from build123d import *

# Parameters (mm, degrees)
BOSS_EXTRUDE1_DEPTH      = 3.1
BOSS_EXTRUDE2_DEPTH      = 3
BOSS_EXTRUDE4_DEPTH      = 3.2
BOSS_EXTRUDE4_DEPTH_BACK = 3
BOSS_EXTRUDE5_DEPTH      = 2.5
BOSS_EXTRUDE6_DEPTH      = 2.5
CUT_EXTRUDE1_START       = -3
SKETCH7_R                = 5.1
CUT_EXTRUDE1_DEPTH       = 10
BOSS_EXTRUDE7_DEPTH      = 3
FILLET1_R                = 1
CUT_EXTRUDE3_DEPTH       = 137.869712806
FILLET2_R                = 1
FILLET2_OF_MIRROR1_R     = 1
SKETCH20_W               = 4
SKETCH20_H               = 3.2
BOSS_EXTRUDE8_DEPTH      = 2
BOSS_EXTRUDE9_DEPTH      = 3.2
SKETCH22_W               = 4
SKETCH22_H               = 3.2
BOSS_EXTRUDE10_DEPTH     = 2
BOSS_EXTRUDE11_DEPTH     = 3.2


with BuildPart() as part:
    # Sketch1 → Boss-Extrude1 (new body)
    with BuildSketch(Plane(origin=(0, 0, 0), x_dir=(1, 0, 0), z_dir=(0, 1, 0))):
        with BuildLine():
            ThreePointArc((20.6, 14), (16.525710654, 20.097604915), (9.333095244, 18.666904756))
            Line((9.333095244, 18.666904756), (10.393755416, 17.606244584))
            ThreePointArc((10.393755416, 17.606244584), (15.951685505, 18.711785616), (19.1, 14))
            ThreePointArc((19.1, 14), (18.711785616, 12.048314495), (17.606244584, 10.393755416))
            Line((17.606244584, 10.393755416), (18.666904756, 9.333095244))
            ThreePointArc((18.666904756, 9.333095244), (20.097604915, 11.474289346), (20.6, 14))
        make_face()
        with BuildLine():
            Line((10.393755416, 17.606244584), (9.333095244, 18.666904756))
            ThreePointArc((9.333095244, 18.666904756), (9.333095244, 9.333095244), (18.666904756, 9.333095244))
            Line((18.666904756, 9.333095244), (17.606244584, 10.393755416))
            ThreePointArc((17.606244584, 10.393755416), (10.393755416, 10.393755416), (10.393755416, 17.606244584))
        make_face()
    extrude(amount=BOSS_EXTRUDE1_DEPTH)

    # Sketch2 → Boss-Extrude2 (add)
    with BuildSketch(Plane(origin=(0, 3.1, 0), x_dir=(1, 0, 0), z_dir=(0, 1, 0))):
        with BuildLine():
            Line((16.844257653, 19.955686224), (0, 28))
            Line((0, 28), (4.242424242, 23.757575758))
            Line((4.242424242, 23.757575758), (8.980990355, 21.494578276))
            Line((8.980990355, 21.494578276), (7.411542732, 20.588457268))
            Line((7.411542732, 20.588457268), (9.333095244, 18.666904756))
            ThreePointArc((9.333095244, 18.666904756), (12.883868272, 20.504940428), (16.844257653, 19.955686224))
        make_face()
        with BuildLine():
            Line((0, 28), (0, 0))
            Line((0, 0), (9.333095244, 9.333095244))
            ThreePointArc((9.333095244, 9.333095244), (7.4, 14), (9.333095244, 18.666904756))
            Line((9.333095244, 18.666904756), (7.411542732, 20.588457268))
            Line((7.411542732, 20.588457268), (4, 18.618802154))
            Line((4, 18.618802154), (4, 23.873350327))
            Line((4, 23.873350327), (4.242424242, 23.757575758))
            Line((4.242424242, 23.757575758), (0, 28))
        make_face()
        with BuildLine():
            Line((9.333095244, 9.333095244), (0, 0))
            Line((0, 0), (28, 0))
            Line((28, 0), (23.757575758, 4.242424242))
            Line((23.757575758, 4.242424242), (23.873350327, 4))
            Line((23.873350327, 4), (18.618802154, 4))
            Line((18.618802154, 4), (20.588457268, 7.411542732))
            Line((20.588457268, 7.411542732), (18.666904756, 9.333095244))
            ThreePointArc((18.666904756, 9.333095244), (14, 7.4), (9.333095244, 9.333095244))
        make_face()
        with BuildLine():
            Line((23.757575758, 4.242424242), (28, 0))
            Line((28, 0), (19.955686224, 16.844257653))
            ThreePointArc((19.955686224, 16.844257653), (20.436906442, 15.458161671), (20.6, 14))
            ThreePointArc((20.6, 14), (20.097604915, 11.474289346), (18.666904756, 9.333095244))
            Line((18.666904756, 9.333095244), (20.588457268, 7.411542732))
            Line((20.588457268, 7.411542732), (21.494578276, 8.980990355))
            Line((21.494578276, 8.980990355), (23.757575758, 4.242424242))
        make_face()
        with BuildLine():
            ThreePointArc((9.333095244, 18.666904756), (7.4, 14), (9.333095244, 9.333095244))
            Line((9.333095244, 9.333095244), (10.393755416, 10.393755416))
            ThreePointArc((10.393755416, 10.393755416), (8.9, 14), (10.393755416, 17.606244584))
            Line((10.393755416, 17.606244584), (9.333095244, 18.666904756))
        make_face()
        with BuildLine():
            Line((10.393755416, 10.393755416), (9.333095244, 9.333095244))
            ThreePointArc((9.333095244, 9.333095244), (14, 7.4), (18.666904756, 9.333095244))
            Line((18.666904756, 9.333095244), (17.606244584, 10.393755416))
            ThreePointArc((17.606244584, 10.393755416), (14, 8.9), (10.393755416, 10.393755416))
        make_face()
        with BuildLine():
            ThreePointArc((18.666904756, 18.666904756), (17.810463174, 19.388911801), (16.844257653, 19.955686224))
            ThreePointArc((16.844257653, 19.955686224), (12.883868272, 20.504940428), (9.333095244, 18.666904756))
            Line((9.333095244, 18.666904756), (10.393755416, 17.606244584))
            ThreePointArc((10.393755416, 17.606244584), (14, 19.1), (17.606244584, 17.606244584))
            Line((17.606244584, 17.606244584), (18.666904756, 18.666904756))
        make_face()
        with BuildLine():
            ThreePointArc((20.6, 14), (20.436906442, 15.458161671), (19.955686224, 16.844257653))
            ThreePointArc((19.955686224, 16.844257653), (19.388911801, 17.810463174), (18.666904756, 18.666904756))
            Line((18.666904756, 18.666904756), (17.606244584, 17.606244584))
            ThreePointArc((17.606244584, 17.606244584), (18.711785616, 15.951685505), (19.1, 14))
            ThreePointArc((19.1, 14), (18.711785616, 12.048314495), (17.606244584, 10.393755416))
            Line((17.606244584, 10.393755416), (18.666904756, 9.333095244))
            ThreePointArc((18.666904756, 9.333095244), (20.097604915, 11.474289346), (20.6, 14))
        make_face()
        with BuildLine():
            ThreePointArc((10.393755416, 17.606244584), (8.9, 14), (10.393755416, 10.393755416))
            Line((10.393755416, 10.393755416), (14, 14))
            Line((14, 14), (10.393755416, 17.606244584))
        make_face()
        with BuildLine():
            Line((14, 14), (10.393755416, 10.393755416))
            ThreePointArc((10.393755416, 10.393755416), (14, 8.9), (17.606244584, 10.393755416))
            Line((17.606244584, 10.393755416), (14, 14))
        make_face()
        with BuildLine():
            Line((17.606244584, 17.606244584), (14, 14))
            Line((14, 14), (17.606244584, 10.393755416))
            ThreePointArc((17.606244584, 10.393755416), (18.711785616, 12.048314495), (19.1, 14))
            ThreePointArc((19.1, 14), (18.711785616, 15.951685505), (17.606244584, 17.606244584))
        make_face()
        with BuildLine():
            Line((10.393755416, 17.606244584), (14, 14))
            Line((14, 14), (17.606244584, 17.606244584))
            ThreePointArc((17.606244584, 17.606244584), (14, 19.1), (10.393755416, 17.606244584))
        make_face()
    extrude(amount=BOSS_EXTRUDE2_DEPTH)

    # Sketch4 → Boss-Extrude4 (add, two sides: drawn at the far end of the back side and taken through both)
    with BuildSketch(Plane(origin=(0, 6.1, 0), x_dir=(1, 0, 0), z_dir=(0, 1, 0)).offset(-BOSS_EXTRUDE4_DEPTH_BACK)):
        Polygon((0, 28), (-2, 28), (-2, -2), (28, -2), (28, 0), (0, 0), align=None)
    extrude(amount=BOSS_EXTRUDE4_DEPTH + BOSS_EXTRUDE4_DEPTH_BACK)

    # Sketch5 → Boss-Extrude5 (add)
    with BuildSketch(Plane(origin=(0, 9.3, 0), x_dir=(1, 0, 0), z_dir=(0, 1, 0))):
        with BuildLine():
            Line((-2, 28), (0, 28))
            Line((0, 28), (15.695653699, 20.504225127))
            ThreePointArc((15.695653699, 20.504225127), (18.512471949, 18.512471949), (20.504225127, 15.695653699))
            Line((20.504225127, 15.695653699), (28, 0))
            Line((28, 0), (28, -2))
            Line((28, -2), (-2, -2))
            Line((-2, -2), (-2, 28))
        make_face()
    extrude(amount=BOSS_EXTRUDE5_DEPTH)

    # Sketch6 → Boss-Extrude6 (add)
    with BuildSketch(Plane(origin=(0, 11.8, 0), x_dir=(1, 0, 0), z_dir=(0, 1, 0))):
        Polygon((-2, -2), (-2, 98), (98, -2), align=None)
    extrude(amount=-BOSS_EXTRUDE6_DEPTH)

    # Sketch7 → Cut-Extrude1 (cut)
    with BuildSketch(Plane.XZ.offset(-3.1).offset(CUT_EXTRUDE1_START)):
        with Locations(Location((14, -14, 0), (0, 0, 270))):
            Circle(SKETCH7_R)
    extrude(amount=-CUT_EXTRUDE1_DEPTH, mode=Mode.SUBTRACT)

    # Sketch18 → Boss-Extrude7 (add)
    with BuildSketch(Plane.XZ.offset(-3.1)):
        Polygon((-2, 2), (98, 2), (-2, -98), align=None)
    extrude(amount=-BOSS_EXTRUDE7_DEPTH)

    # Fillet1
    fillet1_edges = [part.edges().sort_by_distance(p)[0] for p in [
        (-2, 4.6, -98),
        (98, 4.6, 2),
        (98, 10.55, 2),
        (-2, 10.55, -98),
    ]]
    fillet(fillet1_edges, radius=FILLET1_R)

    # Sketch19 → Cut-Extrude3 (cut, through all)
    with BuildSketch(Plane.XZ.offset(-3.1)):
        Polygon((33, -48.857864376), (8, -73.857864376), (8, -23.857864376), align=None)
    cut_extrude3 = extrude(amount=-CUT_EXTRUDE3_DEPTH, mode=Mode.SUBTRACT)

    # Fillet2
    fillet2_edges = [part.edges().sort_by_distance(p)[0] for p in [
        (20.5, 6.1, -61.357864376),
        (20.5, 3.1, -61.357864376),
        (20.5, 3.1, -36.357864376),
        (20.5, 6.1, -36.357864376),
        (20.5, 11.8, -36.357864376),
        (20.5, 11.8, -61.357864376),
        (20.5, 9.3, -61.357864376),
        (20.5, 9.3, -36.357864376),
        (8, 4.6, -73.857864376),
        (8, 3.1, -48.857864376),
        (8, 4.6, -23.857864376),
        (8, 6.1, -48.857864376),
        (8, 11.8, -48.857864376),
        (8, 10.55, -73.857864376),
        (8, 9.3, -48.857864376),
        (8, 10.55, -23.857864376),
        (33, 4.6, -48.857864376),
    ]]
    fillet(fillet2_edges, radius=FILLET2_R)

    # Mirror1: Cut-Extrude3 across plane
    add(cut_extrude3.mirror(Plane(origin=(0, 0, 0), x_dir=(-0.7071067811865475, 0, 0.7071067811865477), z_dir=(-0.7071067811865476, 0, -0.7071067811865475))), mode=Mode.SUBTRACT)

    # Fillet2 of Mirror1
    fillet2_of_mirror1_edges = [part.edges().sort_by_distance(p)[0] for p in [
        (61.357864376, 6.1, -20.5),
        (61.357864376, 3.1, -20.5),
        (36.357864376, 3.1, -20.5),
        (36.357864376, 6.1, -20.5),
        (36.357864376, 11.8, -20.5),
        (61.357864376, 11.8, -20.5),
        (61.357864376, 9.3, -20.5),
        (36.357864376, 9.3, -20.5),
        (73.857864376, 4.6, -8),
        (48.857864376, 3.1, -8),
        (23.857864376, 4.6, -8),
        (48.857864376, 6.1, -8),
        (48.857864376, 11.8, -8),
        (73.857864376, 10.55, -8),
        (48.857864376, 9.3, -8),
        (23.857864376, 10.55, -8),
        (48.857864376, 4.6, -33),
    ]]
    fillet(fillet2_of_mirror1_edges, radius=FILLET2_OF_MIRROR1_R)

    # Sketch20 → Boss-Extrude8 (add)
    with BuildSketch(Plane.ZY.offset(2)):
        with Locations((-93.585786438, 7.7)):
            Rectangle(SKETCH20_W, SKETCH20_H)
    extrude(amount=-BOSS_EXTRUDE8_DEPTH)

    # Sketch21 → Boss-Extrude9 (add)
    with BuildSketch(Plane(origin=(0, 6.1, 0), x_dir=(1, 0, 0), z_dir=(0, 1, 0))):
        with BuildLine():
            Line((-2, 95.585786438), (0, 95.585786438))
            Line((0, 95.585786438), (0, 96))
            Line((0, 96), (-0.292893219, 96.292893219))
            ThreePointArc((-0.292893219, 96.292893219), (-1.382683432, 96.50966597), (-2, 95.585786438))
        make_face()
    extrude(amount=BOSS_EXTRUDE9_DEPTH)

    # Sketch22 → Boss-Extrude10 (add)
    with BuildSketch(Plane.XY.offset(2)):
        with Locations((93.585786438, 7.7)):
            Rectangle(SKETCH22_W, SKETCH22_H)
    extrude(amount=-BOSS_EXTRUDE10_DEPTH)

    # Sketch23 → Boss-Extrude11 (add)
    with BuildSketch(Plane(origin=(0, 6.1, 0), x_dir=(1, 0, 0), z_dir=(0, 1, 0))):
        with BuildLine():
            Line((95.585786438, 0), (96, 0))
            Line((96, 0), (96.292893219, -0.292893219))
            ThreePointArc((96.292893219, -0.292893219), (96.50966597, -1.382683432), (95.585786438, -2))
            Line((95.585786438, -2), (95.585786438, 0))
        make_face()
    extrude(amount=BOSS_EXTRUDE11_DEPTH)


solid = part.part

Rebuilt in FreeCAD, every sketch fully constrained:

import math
import FreeCAD as App
import Part
import Sketcher
Q = App.Units.Quantity


def edges_at(feature, points):
    """Names of the edges that pass closest to the given points."""
    edges = feature.Shape.Edges
    near = lambda p: min(range(len(edges)), key=lambda i: edges[i].distToShape(Part.Vertex(*p))[0])
    return sorted({f"Edge{near(p) + 1}" for p in points})

doc = App.newDocument("Part")
body = doc.addObject("PartDesign::Body", "Body")

sketch1 = body.newObject("Sketcher::SketchObject", "Sketch")
sketch1.AttachmentSupport = (doc.getObject("XZ_Plane"), [""])
sketch1.MapMode = "FlatFace"
sketch1.addGeometry([
    Part.ArcOfCircle(Part.Circle(App.Vector(14, -14, 0), App.Vector(0, 0, 1), 6.6), math.radians(-135), math.radians(0)),
    Part.ArcOfCircle(Part.Circle(App.Vector(14, -14, 0), App.Vector(0, 0, 1), 6.6), math.radians(45), math.radians(225)),
    Part.ArcOfCircle(Part.Circle(App.Vector(14, -14, 0), App.Vector(0, 0, 1), 6.6), math.radians(0), math.radians(45)),
    Part.ArcOfCircle(Part.Circle(App.Vector(14, -14, 0), App.Vector(0, 0, 1), 5.1), math.radians(0), math.radians(45)),
    Part.ArcOfCircle(Part.Circle(App.Vector(14, -14, 0), App.Vector(0, 0, 1), 5.1), math.radians(45), math.radians(225)),
    Part.ArcOfCircle(Part.Circle(App.Vector(14, -14, 0), App.Vector(0, 0, 1), 5.1), math.radians(-135), math.radians(0)),
], False)
sketch1.addConstraint([
    Sketcher.Constraint("Tangent", 0, 1, 1, 2),
    Sketcher.Constraint("Tangent", 1, 1, 2, 2),
    Sketcher.Constraint("Tangent", 2, 1, 0, 2),
    Sketcher.Constraint("Tangent", 3, 2, 4, 1),
    Sketcher.Constraint("Tangent", 4, 2, 5, 1),
    Sketcher.Constraint("Tangent", 5, 2, 3, 1),
    Sketcher.Constraint("Coincident", 3, 3, 0, 3),
    Sketcher.Constraint("Horizontal", 5, 3, 2, 1),
    Sketcher.Constraint("Horizontal", 2, 1, 5, 2),
    Sketcher.Constraint("Radius", 0, Q("6.6 mm")),
    Sketcher.Constraint("Radius", 3, Q("5.1 mm")),
    Sketcher.Constraint("DistanceX", -1, 1, 0, 3, Q("14 mm")),
    Sketcher.Constraint("DistanceY", 0, 3, -1, 1, Q("14 mm")),
    Sketcher.Constraint("DistanceX", 3, 2, 1, 1, Q("1.06066 mm")),
    Sketcher.Constraint("DistanceX", 0, 1, 4, 2, Q("1.06066 mm")),
    Sketcher.Constraint("DistanceX", -1, 1, 0, 1, Q("9.333095 mm")),
    Sketcher.Constraint("DistanceX", -1, 1, 1, 1, Q("18.666905 mm")),
])
pad1 = body.newObject("PartDesign::Pad", "Pad")
pad1.Profile = sketch1
pad1.Length = 3.1
pad1.Reversed = True

sketch2 = body.newObject("Sketcher::SketchObject", "Sketch001")
sketch2.AttachmentSupport = (doc.getObject("XZ_Plane"), [""])
sketch2.MapMode = "FlatFace"
sketch2.AttachmentOffset = App.Placement(App.Vector(0, 0, -3.1), App.Rotation())
sketch2.addGeometry([
    Part.ArcOfCircle(Part.Circle(App.Vector(14, -14, 0), App.Vector(0, 0, 1), 6.6), math.radians(-64.47), math.radians(-45)),
    Part.LineSegment(App.Vector(16.84, -19.96, 0), App.Vector(0, -28, 0)),
    Part.LineSegment(App.Vector(0, -28, 0), App.Vector(0, 0, 0)),
    Part.LineSegment(App.Vector(0, 0, 0), App.Vector(28, 0, 0)),
    Part.LineSegment(App.Vector(28, 0, 0), App.Vector(19.96, -16.84, 0)),
    Part.ArcOfCircle(Part.Circle(App.Vector(14, -14, 0), App.Vector(0, 0, 1), 6.6), math.radians(-45), math.radians(-25.53)),
    Part.LineSegment(App.Vector(23.76, -4.24, 0), App.Vector(23.87, -4, 0)),
    Part.LineSegment(App.Vector(23.87, -4, 0), App.Vector(18.62, -4, 0)),
    Part.LineSegment(App.Vector(18.62, -4, 0), App.Vector(20.59, -7.41, 0)),
    Part.LineSegment(App.Vector(20.59, -7.41, 0), App.Vector(21.49, -8.98, 0)),
    Part.LineSegment(App.Vector(21.49, -8.98, 0), App.Vector(23.76, -4.24, 0)),
    Part.LineSegment(App.Vector(4.24, -23.76, 0), App.Vector(8.98, -21.49, 0)),
    Part.LineSegment(App.Vector(8.98, -21.49, 0), App.Vector(7.41, -20.59, 0)),
    Part.LineSegment(App.Vector(7.41, -20.59, 0), App.Vector(4, -18.62, 0)),
    Part.LineSegment(App.Vector(4, -18.62, 0), App.Vector(4, -23.87, 0)),
    Part.LineSegment(App.Vector(4, -23.87, 0), App.Vector(4.24, -23.76, 0)),
], False)
sketch2.addConstraint([
    Sketcher.Constraint("Tangent", 0, 1, 1, 1),
    Sketcher.Constraint("Coincident", 1, 2, 2, 1),
    Sketcher.Constraint("Coincident", 2, 2, 3, 1),
    Sketcher.Constraint("Coincident", 3, 2, 4, 1),
    Sketcher.Constraint("Tangent", 4, 2, 5, 2),
    Sketcher.Constraint("Tangent", 5, 1, 0, 2),
    Sketcher.Constraint("Coincident", 6, 2, 7, 1),
    Sketcher.Constraint("Coincident", 7, 2, 8, 1),
    Sketcher.Constraint("Coincident", 8, 2, 9, 1),
    Sketcher.Constraint("Coincident", 9, 2, 10, 1),
    Sketcher.Constraint("Coincident", 10, 2, 6, 1),
    Sketcher.Constraint("Coincident", 11, 2, 12, 1),
    Sketcher.Constraint("Coincident", 12, 2, 13, 1),
    Sketcher.Constraint("Coincident", 13, 2, 14, 1),
    Sketcher.Constraint("Coincident", 14, 2, 15, 1),
    Sketcher.Constraint("Coincident", 15, 2, 11, 1),
    Sketcher.Constraint("Vertical", 2),
    Sketcher.Constraint("Horizontal", 3),
    Sketcher.Constraint("Horizontal", 7),
    Sketcher.Constraint("Vertical", 14),
    Sketcher.Constraint("Coincident", 2, 2, -1, 1),
    Sketcher.Constraint("Equal", 0, 5),
    Sketcher.Constraint("Parallel", 4, 6),
    Sketcher.Constraint("Parallel", 8, 9),
    Sketcher.Constraint("Parallel", 6, 10),
    Sketcher.Constraint("Parallel", 1, 11),
    Sketcher.Constraint("Parallel", 12, 13),
    Sketcher.Constraint("Parallel", 11, 15),
    Sketcher.Constraint("Equal", 3, 2),
    Sketcher.Constraint("Equal", 7, 14),
    Sketcher.Constraint("Equal", 1, 4),
    Sketcher.Constraint("Equal", 10, 11),
    Sketcher.Constraint("Equal", 9, 12),
    Sketcher.Constraint("Equal", 8, 13),
    Sketcher.Constraint("Radius", 0, Q("6.6 mm")),
    Sketcher.Constraint("DistanceX", 3, 1, 3, 2, Q("28 mm")),
    Sketcher.Constraint("Angle", 8, Q("-60 deg")),
    Sketcher.Constraint("DistanceX", -1, 1, 0, 3, Q("14 mm")),
    Sketcher.Constraint("DistanceY", 6, 2, -1, 1, Q("4 mm")),
    Sketcher.Constraint("DistanceX", -1, 1, 13, 2, Q("4 mm")),
    Sketcher.Constraint("DistanceX", 7, 2, 7, 1, Q("5.254548 mm")),
    Sketcher.Constraint("Distance", 6, Q("0.268651 mm")),
    Sketcher.Constraint("Distance", 8, Q("3.93931 mm")),
    Sketcher.Constraint("DistanceX", -1, 1, 6, 2, Q("23.87335 mm")),
    Sketcher.Constraint("DistanceY", 11, 2, -1, 1, Q("21.494578 mm")),
    Sketcher.Constraint("DistanceY", 0, 1, 5, 1, Q("1.288781 mm")),
])
pad2 = body.newObject("PartDesign::Pad", "Pad001")
pad2.Profile = sketch2
pad2.Length = 3
pad2.Reversed = True

sketch3 = body.newObject("Sketcher::SketchObject", "Sketch002")
sketch3.AttachmentSupport = (doc.getObject("XZ_Plane"), [""])
sketch3.MapMode = "FlatFace"
sketch3.AttachmentOffset = App.Placement(App.Vector(0, 0, -6.1), App.Rotation())
sketch3.addGeometry([
    Part.LineSegment(App.Vector(0, -28, 0), App.Vector(-2, -28, 0)),
    Part.LineSegment(App.Vector(-2, -28, 0), App.Vector(-2, 2, 0)),
    Part.LineSegment(App.Vector(-2, 2, 0), App.Vector(28, 2, 0)),
    Part.LineSegment(App.Vector(28, 2, 0), App.Vector(28, 0, 0)),
    Part.LineSegment(App.Vector(28, 0, 0), App.Vector(0, 0, 0)),
    Part.LineSegment(App.Vector(0, 0, 0), App.Vector(0, -28, 0)),
], False)
sketch3.addConstraint([
    Sketcher.Constraint("Coincident", 0, 2, 1, 1),
    Sketcher.Constraint("Coincident", 1, 2, 2, 1),
    Sketcher.Constraint("Coincident", 2, 2, 3, 1),
    Sketcher.Constraint("Coincident", 3, 2, 4, 1),
    Sketcher.Constraint("Coincident", 4, 2, 5, 1),
    Sketcher.Constraint("Coincident", 5, 2, 0, 1),
    Sketcher.Constraint("Horizontal", 0),
    Sketcher.Constraint("Vertical", 1),
    Sketcher.Constraint("Horizontal", 2),
    Sketcher.Constraint("Vertical", 3),
    Sketcher.Constraint("Horizontal", 4),
    Sketcher.Constraint("Vertical", 5),
    Sketcher.Constraint("Coincident", 4, 2, -1, 1),
    Sketcher.Constraint("Equal", 2, 1),
    Sketcher.Constraint("Equal", 0, 3),
    Sketcher.Constraint("DistanceX", 0, 2, 0, 1, Q("2 mm")),
    Sketcher.Constraint("DistanceX", 2, 1, 2, 2, Q("30 mm")),
])
pad3 = body.newObject("PartDesign::Pad", "Pad002")
pad3.Profile = sketch3
pad3.Type = "TwoLengths"
pad3.Length = 3.2
pad3.Length2 = 3
pad3.Reversed = True

sketch4 = body.newObject("Sketcher::SketchObject", "Sketch003")
sketch4.AttachmentSupport = (doc.getObject("XZ_Plane"), [""])
sketch4.MapMode = "FlatFace"
sketch4.AttachmentOffset = App.Placement(App.Vector(0, 0, -9.3), App.Rotation())
sketch4.addGeometry([
    Part.LineSegment(App.Vector(0, -28, 0), App.Vector(-2, -28, 0)),
    Part.LineSegment(App.Vector(-2, -28, 0), App.Vector(-2, 2, 0)),
    Part.LineSegment(App.Vector(-2, 2, 0), App.Vector(28, 2, 0)),
    Part.LineSegment(App.Vector(28, 2, 0), App.Vector(28, 0, 0)),
    Part.LineSegment(App.Vector(28, 0, 0), App.Vector(20.5, -15.7, 0)),
    Part.ArcOfCircle(Part.Circle(App.Vector(11.3, -11.3, 0), App.Vector(0, 0, 1), 10.2), math.radians(-64), math.radians(-26)),
    Part.LineSegment(App.Vector(15.7, -20.5, 0), App.Vector(0, -28, 0)),
], False)
sketch4.addConstraint([
    Sketcher.Constraint("Coincident", 0, 2, 1, 1),
    Sketcher.Constraint("Coincident", 1, 2, 2, 1),
    Sketcher.Constraint("Coincident", 2, 2, 3, 1),
    Sketcher.Constraint("Coincident", 3, 2, 4, 1),
    Sketcher.Constraint("Tangent", 4, 2, 5, 2),
    Sketcher.Constraint("Tangent", 5, 1, 6, 1),
    Sketcher.Constraint("Coincident", 6, 2, 0, 1),
    Sketcher.Constraint("Horizontal", 0),
    Sketcher.Constraint("Vertical", 1),
    Sketcher.Constraint("Horizontal", 2),
    Sketcher.Constraint("Vertical", 3),
    Sketcher.Constraint("PointOnObject", 3, 2, -1),
    Sketcher.Constraint("PointOnObject", 6, 2, -2),
    Sketcher.Constraint("Equal", 2, 1),
    Sketcher.Constraint("Equal", 0, 3),
    Sketcher.Constraint("Equal", 4, 6),
    Sketcher.Constraint("Radius", 5, Q("10.2 mm")),
    Sketcher.Constraint("DistanceX", 0, 2, 0, 1, Q("2 mm")),
    Sketcher.Constraint("DistanceX", 2, 1, 2, 2, Q("30 mm")),
    Sketcher.Constraint("DistanceY", 4, 2, 5, 3, Q("4.395671 mm")),
])
pad4 = body.newObject("PartDesign::Pad", "Pad003")
pad4.Profile = sketch4
pad4.Length = 2.5
pad4.Reversed = True

sketch5 = body.newObject("Sketcher::SketchObject", "Sketch004")
sketch5.AttachmentSupport = (doc.getObject("XZ_Plane"), [""])
sketch5.MapMode = "FlatFace"
sketch5.AttachmentOffset = App.Placement(App.Vector(0, 0, -11.8), App.Rotation())
sketch5.addGeometry([
    Part.LineSegment(App.Vector(-2, -98, 0), App.Vector(-2, 2, 0)),
    Part.LineSegment(App.Vector(-2, 2, 0), App.Vector(98, 2, 0)),
    Part.LineSegment(App.Vector(98, 2, 0), App.Vector(-2, -98, 0)),
], False)
sketch5.addConstraint([
    Sketcher.Constraint("Coincident", 0, 2, 1, 1),
    Sketcher.Constraint("Coincident", 1, 2, 2, 1),
    Sketcher.Constraint("Coincident", 2, 2, 0, 1),
    Sketcher.Constraint("Vertical", 0),
    Sketcher.Constraint("Horizontal", 1),
    Sketcher.Constraint("Equal", 1, 0),
    Sketcher.Constraint("DistanceX", 1, 1, 1, 2, Q("100 mm")),
    Sketcher.Constraint("DistanceX", 0, 2, -1, 1, Q("2 mm")),
    Sketcher.Constraint("DistanceY", -1, 1, 0, 2, Q("2 mm")),
])
pad5 = body.newObject("PartDesign::Pad", "Pad004")
pad5.Profile = sketch5
pad5.Length = 2.5

sketch6 = body.newObject("Sketcher::SketchObject", "Sketch005")
sketch6.AttachmentSupport = (doc.getObject("XZ_Plane"), [""])
sketch6.MapMode = "FlatFace"
sketch6.AttachmentOffset = App.Placement(App.Vector(0, 0, -6.1), App.Rotation())
sketch6.addGeometry(Part.Circle(App.Vector(14, -14, 0), App.Vector(0, 0, 1), 5), False)
sketch6.addConstraint([
    Sketcher.Constraint("Diameter", 0, Q("10.2 mm")),
    Sketcher.Constraint("DistanceX", -1, 1, 0, 3, Q("14 mm")),
    Sketcher.Constraint("DistanceY", 0, 3, -1, 1, Q("14 mm")),
])
pocket1 = body.newObject("PartDesign::Pocket", "Pocket")
pocket1.Profile = sketch6
pocket1.Length = 10

sketch7 = body.newObject("Sketcher::SketchObject", "Sketch006")
sketch7.AttachmentSupport = (doc.getObject("XZ_Plane"), [""])
sketch7.MapMode = "FlatFace"
sketch7.AttachmentOffset = App.Placement(App.Vector(0, 0, -3.1), App.Rotation())
sketch7.addGeometry([
    Part.LineSegment(App.Vector(98, 2, 0), App.Vector(-2, 2, 0)),
    Part.LineSegment(App.Vector(-2, 2, 0), App.Vector(-2, -98, 0)),
    Part.LineSegment(App.Vector(-2, -98, 0), App.Vector(98, 2, 0)),
], False)
sketch7.addConstraint([
    Sketcher.Constraint("Coincident", 0, 2, 1, 1),
    Sketcher.Constraint("Coincident", 1, 2, 2, 1),
    Sketcher.Constraint("Coincident", 2, 2, 0, 1),
    Sketcher.Constraint("Horizontal", 0),
    Sketcher.Constraint("Vertical", 1),
    Sketcher.Constraint("Equal", 0, 1),
    Sketcher.Constraint("DistanceX", 0, 2, 0, 1, Q("100 mm")),
    Sketcher.Constraint("DistanceX", 0, 2, -1, 1, Q("2 mm")),
    Sketcher.Constraint("DistanceY", -1, 1, 0, 2, Q("2 mm")),
])
pad6 = body.newObject("PartDesign::Pad", "Pad005")
pad6.Profile = sketch7
pad6.Length = 3
pad6.Reversed = True
doc.recompute()

fillet = body.newObject("PartDesign::Fillet", "Fillet")
fillet.Base = (pad6, edges_at(pad6, [
    (-2, 4.6, -98),
    (98, 4.6, 2),
    (98, 10.55, 2),
    (-2, 10.55, -98),
]))
fillet.Radius = 1

sketch8 = body.newObject("Sketcher::SketchObject", "Sketch007")
sketch8.AttachmentSupport = (doc.getObject("XZ_Plane"), [""])
sketch8.MapMode = "FlatFace"
sketch8.AttachmentOffset = App.Placement(App.Vector(0, 0, -3.1), App.Rotation())
sketch8.addGeometry([
    Part.LineSegment(App.Vector(8, -74, 0), App.Vector(33, -49, 0)),
    Part.LineSegment(App.Vector(33, -49, 0), App.Vector(8, -24, 0)),
    Part.LineSegment(App.Vector(8, -24, 0), App.Vector(8, -74, 0)),
], False)
sketch8.addConstraint([
    Sketcher.Constraint("Coincident", 0, 2, 1, 1),
    Sketcher.Constraint("Coincident", 1, 2, 2, 1),
    Sketcher.Constraint("Coincident", 2, 2, 0, 1),
    Sketcher.Constraint("Vertical", 2),
    Sketcher.Constraint("Perpendicular", 0, 1),
    Sketcher.Constraint("Equal", 0, 1),
    Sketcher.Constraint("DistanceY", 2, 2, 2, 1, Q("50 mm")),
    Sketcher.Constraint("DistanceX", -1, 1, 0, 2, Q("33 mm")),
    Sketcher.Constraint("DistanceY", 0, 2, -1, 1, Q("48.857864 mm")),
])
pocket2 = body.newObject("PartDesign::Pocket", "Pocket001")
pocket2.Profile = sketch8
pocket2.Type = "ThroughAll"
doc.recompute()

fillet2 = body.newObject("PartDesign::Fillet", "Fillet001")
fillet2.Base = (pocket2, edges_at(pocket2, [
    (20.5, 6.1, -61.358),
    (20.5, 3.1, -61.358),
    (20.5, 3.1, -36.358),
    (20.5, 6.1, -36.358),
    (20.5, 11.8, -36.358),
    (20.5, 11.8, -61.358),
    (20.5, 9.3, -61.358),
    (20.5, 9.3, -36.358),
    (8, 4.6, -73.858),
    (8, 3.1, -48.858),
    (8, 4.6, -23.858),
    (8, 6.1, -48.858),
    (8, 11.8, -48.858),
    (8, 10.55, -73.858),
    (8, 9.3, -48.858),
    (8, 10.55, -23.858),
    (33, 4.6, -48.858),
]))
fillet2.Radius = 1
doc.recompute()

datumplane = body.newObject("PartDesign::Plane", "DatumPlane")
datumplane.Placement = App.Placement(App.Vector(0, 0, 0), App.Rotation(App.Vector(0.707106781, 0, -0.707106781), App.Vector(0, -1, 0), App.Vector(-0.707106781, 0, -0.707106781), "ZXY"))
mirrored = body.newObject("PartDesign::Mirrored", "Mirrored")
mirrored.Originals = [pocket2]
mirrored.MirrorPlane = (datumplane, [""])
body.Tip = mirrored
doc.recompute()

fillet3 = body.newObject("PartDesign::Fillet", "Fillet002")
fillet3.Base = (mirrored, edges_at(mirrored, [
    (61.358, 6.1, -20.5),
    (61.358, 3.1, -20.5),
    (36.358, 3.1, -20.5),
    (36.358, 6.1, -20.5),
    (36.358, 11.8, -20.5),
    (61.358, 11.8, -20.5),
    (61.358, 9.3, -20.5),
    (36.358, 9.3, -20.5),
    (73.858, 4.6, -8),
    (48.858, 3.1, -8),
    (23.858, 4.6, -8),
    (48.858, 6.1, -8),
    (48.858, 11.8, -8),
    (73.858, 10.55, -8),
    (48.858, 9.3, -8),
    (23.858, 10.55, -8),
    (48.858, 4.6, -33),
]))
fillet3.Radius = 1

sketch9 = body.newObject("Sketcher::SketchObject", "Sketch008")
sketch9.AttachmentSupport = (doc.getObject("YZ_Plane"), [""])
sketch9.MapMode = "FlatFace"
sketch9.AttachmentOffset = App.Placement(App.Vector(0, 0, -2), App.Rotation())
sketch9.addGeometry([
    Part.LineSegment(App.Vector(9.3, -95.6, 0), App.Vector(6.1, -95.6, 0)),
    Part.LineSegment(App.Vector(6.1, -95.6, 0), App.Vector(6.1, -91.6, 0)),
    Part.LineSegment(App.Vector(6.1, -91.6, 0), App.Vector(9.3, -91.6, 0)),
    Part.LineSegment(App.Vector(9.3, -91.6, 0), App.Vector(9.3, -95.6, 0)),
], False)
sketch9.addConstraint([
    Sketcher.Constraint("Coincident", 0, 2, 1, 1),
    Sketcher.Constraint("Coincident", 1, 2, 2, 1),
    Sketcher.Constraint("Coincident", 2, 2, 3, 1),
    Sketcher.Constraint("Coincident", 3, 2, 0, 1),
    Sketcher.Constraint("Horizontal", 0),
    Sketcher.Constraint("Vertical", 1),
    Sketcher.Constraint("Horizontal", 2),
    Sketcher.Constraint("Vertical", 3),
    Sketcher.Constraint("DistanceY", 1, 1, 1, 2, Q("4 mm")),
    Sketcher.Constraint("DistanceX", 0, 2, 0, 1, Q("3.2 mm")),
    Sketcher.Constraint("DistanceX", -1, 1, 0, 2, Q("6.1 mm")),
    Sketcher.Constraint("DistanceY", 0, 2, -1, 1, Q("95.585786 mm")),
])
pad7 = body.newObject("PartDesign::Pad", "Pad006")
pad7.Profile = sketch9
pad7.Length = 2

sketch10 = body.newObject("Sketcher::SketchObject", "Sketch009")
sketch10.AttachmentSupport = (doc.getObject("XZ_Plane"), [""])
sketch10.MapMode = "FlatFace"
sketch10.AttachmentOffset = App.Placement(App.Vector(0, 0, -6.1), App.Rotation())
sketch10.addGeometry([
    Part.LineSegment(App.Vector(-2, -95.59, 0), App.Vector(0, -95.59, 0)),
    Part.LineSegment(App.Vector(0, -95.59, 0), App.Vector(0, -96, 0)),
    Part.LineSegment(App.Vector(0, -96, 0), App.Vector(-0.29, -96.29, 0)),
    Part.ArcOfCircle(Part.Circle(App.Vector(-1, -95.59, 0), App.Vector(0, 0, 1), 1), math.radians(-180), math.radians(-45)),
], False)
sketch10.addConstraint([
    Sketcher.Constraint("Coincident", 0, 2, 1, 1),
    Sketcher.Constraint("Coincident", 1, 2, 2, 1),
    Sketcher.Constraint("Tangent", 2, 2, 3, 2),
    Sketcher.Constraint("Coincident", 3, 1, 0, 1),
    Sketcher.Constraint("Horizontal", 0),
    Sketcher.Constraint("Vertical", 1),
    Sketcher.Constraint("PointOnObject", 0, 2, -2),
    Sketcher.Constraint("Horizontal", 3, 3, 0, 2),
    Sketcher.Constraint("Radius", 3, Q("1 mm")),
    Sketcher.Constraint("DistanceX", 0, 1, 0, 2, Q("2 mm")),
    Sketcher.Constraint("Angle", 2, Q("-135 deg")),
    Sketcher.Constraint("DistanceY", 1, 2, -1, 1, Q("96 mm")),
])
pad8 = body.newObject("PartDesign::Pad", "Pad007")
pad8.Profile = sketch10
pad8.Length = 3.2
pad8.Reversed = True

sketch11 = body.newObject("Sketcher::SketchObject", "Sketch010")
sketch11.AttachmentSupport = (doc.getObject("XY_Plane"), [""])
sketch11.MapMode = "FlatFace"
sketch11.AttachmentOffset = App.Placement(App.Vector(0, 0, 2), App.Rotation())
sketch11.addGeometry([
    Part.LineSegment(App.Vector(91.6, 9.3, 0), App.Vector(91.6, 6.1, 0)),
    Part.LineSegment(App.Vector(91.6, 6.1, 0), App.Vector(95.6, 6.1, 0)),
    Part.LineSegment(App.Vector(95.6, 6.1, 0), App.Vector(95.6, 9.3, 0)),
    Part.LineSegment(App.Vector(95.6, 9.3, 0), App.Vector(91.6, 9.3, 0)),
], False)
sketch11.addConstraint([
    Sketcher.Constraint("Coincident", 0, 2, 1, 1),
    Sketcher.Constraint("Coincident", 1, 2, 2, 1),
    Sketcher.Constraint("Coincident", 2, 2, 3, 1),
    Sketcher.Constraint("Coincident", 3, 2, 0, 1),
    Sketcher.Constraint("Vertical", 0),
    Sketcher.Constraint("Horizontal", 1),
    Sketcher.Constraint("Vertical", 2),
    Sketcher.Constraint("Horizontal", 3),
    Sketcher.Constraint("DistanceX", 1, 1, 1, 2, Q("4 mm")),
    Sketcher.Constraint("DistanceY", 0, 2, 0, 1, Q("3.2 mm")),
    Sketcher.Constraint("DistanceY", -1, 1, 0, 2, Q("6.1 mm")),
    Sketcher.Constraint("DistanceX", -1, 1, 0, 2, Q("91.585786 mm")),
])
pad9 = body.newObject("PartDesign::Pad", "Pad008")
pad9.Profile = sketch11
pad9.Length = 2
pad9.Reversed = True

sketch12 = body.newObject("Sketcher::SketchObject", "Sketch011")
sketch12.AttachmentSupport = (doc.getObject("XZ_Plane"), [""])
sketch12.MapMode = "FlatFace"
sketch12.AttachmentOffset = App.Placement(App.Vector(0, 0, -6.1), App.Rotation())
sketch12.addGeometry([
    Part.LineSegment(App.Vector(96, 0, 0), App.Vector(95.59, 0, 0)),
    Part.LineSegment(App.Vector(95.59, 0, 0), App.Vector(95.59, 2, 0)),
    Part.ArcOfCircle(Part.Circle(App.Vector(95.59, 1, 0), App.Vector(0, 0, 1), 1), math.radians(-45), math.radians(90)),
    Part.LineSegment(App.Vector(96.29, 0.29, 0), App.Vector(96, 0, 0)),
], False)
sketch12.addConstraint([
    Sketcher.Constraint("Coincident", 0, 2, 1, 1),
    Sketcher.Constraint("Coincident", 1, 2, 2, 2),
    Sketcher.Constraint("Tangent", 2, 1, 3, 1),
    Sketcher.Constraint("Coincident", 3, 2, 0, 1),
    Sketcher.Constraint("Horizontal", 0),
    Sketcher.Constraint("Vertical", 1),
    Sketcher.Constraint("PointOnObject", 0, 2, -1),
    Sketcher.Constraint("Vertical", 2, 3, 0, 2),
    Sketcher.Constraint("Radius", 2, Q("1 mm")),
    Sketcher.Constraint("DistanceY", 1, 1, 1, 2, Q("2 mm")),
    Sketcher.Constraint("Angle", 3, Q("-135 deg")),
    Sketcher.Constraint("DistanceX", -1, 1, 3, 2, Q("96 mm")),
])
pad10 = body.newObject("PartDesign::Pad", "Pad009")
pad10.Profile = sketch12
pad10.Length = 3.2
pad10.Reversed = True

doc.recompute()
